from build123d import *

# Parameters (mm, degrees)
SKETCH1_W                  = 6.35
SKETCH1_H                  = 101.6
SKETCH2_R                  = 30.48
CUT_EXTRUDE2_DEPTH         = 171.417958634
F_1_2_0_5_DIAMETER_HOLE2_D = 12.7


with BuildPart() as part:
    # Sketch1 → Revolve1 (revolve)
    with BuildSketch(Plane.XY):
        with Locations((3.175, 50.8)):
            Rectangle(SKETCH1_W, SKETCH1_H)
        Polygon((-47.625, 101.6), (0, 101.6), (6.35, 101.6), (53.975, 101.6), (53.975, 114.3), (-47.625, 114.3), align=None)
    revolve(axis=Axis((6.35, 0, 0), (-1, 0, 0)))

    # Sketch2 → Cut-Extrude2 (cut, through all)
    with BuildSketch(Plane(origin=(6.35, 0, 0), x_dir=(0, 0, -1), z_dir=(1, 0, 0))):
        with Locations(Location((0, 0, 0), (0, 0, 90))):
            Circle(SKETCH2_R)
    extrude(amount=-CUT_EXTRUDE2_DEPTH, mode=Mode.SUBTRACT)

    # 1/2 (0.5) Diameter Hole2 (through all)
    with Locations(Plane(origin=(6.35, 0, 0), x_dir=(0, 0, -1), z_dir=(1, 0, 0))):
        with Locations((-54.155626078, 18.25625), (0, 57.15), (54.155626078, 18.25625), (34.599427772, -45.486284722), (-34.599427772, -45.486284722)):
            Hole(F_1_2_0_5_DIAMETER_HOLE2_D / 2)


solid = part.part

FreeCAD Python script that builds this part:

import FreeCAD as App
import Part
import Sketcher
from FreeCAD import Vector
Q = App.Units.Quantity

doc = App.newDocument("Part")
body = doc.addObject("PartDesign::Body", "Body")

# Sketch on XY plane
sketch1 = body.newObject("Sketcher::SketchObject", "Sketch")
sketch1.AttachmentSupport = (doc.getObject("XY_Plane"), [""])
sketch1.MapMode = "FlatFace"
sketch1.addGeometry(Part.LineSegment(Vector(0, 101.6, 0), Vector(0, 0, 0)), False)
sketch1.addGeometry(Part.LineSegment(Vector(0, 0, 0), Vector(6.35, 0, 0)), False)
sketch1.addGeometry(Part.LineSegment(Vector(6.35, 0, 0), Vector(6.35, 101.6, 0)), False)
sketch1.addGeometry(Part.LineSegment(Vector(6.35, 101.6, 0), Vector(53.975, 101.6, 0)), False)
sketch1.addGeometry(Part.LineSegment(Vector(53.975, 101.6, 0), Vector(53.975, 114.3, 0)), False)
sketch1.addGeometry(Part.LineSegment(Vector(53.975, 114.3, 0), Vector(-47.625, 114.3, 0)), False)
sketch1.addGeometry(Part.LineSegment(Vector(-47.625, 114.3, 0), Vector(-47.625, 101.6, 0)), False)
sketch1.addGeometry(Part.LineSegment(Vector(-47.625, 101.6, 0), Vector(0, 101.6, 0)), False)
sketch1.addConstraint(Sketcher.Constraint("Coincident", 0, 2, 1, 1))
sketch1.addConstraint(Sketcher.Constraint("Coincident", 1, 2, 2, 1))
sketch1.addConstraint(Sketcher.Constraint("Coincident", 2, 2, 3, 1))
sketch1.addConstraint(Sketcher.Constraint("Coincident", 3, 2, 4, 1))
sketch1.addConstraint(Sketcher.Constraint("Coincident", 4, 2, 5, 1))
sketch1.addConstraint(Sketcher.Constraint("Coincident", 5, 2, 6, 1))
sketch1.addConstraint(Sketcher.Constraint("Coincident", 6, 2, 7, 1))
sketch1.addConstraint(Sketcher.Constraint("Coincident", 7, 2, 0, 1))
sketch1.addConstraint(Sketcher.Constraint("Vertical", 0))
sketch1.addConstraint(Sketcher.Constraint("Horizontal", 1))
sketch1.addConstraint(Sketcher.Constraint("Vertical", 2))
sketch1.addConstraint(Sketcher.Constraint("Horizontal", 3))
sketch1.addConstraint(Sketcher.Constraint("Vertical", 4))
sketch1.addConstraint(Sketcher.Constraint("Horizontal", 5))
sketch1.addConstraint(Sketcher.Constraint("Vertical", 6))
sketch1.addConstraint(Sketcher.Constraint("Horizontal", 7))
sketch1.addConstraint(Sketcher.Constraint("Coincident", 0, 2, -1, 1))
sketch1.addConstraint(Sketcher.Constraint("Horizontal", 3, 2, 6, 2))
sketch1.addConstraint(Sketcher.Constraint("Equal", 3, 7))
sketch1.addConstraint(Sketcher.Constraint("Equal", 5, 0))
sketch1.addConstraint(Sketcher.Constraint("DistanceX", 5, 2, 5, 1, Q("4 in")))
sketch1.addConstraint(Sketcher.Constraint("DistanceY", 4, 1, 4, 2, Q("0.5 in")))
sketch1.addConstraint(Sketcher.Constraint("DistanceX", 1, 1, 1, 2, Q("0.25 in")))
revolution = body.newObject("PartDesign::Revolution", "Revolution")
revolution.Profile = sketch1
revolution.ReferenceAxis = (sketch1, ["H_Axis"])
revolution.Angle = 360

# Sketch on YZ plane
sketch2 = body.newObject("Sketcher::SketchObject", "Sketch001")
sketch2.AttachmentSupport = (doc.getObject("YZ_Plane"), [""])
sketch2.MapMode = "FlatFace"
sketch2.AttachmentOffset = App.Placement(Vector(0, 0, 0.25 * 25.4), App.Rotation())
sketch2.addGeometry(Part.Circle(Vector(0, 0, 0), Vector(0, 0, 1), 30.48), False)
sketch2.addConstraint(Sketcher.Constraint("Coincident", 0, 3, -1, 1))
sketch2.addConstraint(Sketcher.Constraint("Diameter", 0, Q("2.4 in")))
pocket1 = body.newObject("PartDesign::Pocket", "Pocket")
pocket1.Profile = sketch2
pocket1.Type = "ThroughAll"

# Sketch on YZ plane
sketch3 = body.newObject("Sketcher::SketchObject", "Sketch002")
sketch3.AttachmentSupport = (doc.getObject("YZ_Plane"), [""])
sketch3.MapMode = "FlatFace"
sketch3.AttachmentOffset = App.Placement(Vector(0, 0, 0.25 * 25.4), App.Rotation())
sketch3.addGeometry(Part.Circle(Vector(18.25625, 54.155626, 0), Vector(0, 0, 1), 6.35), False)
sketch3.addGeometry(Part.Circle(Vector(57.15, 0, 0), Vector(0, 0, 1), 6.35), False)
sketch3.addGeometry(Part.Circle(Vector(18.25625, -54.155626, 0), Vector(0, 0, 1), 6.35), False)
sketch3.addGeometry(Part.Circle(Vector(-45.486285, -34.599428, 0), Vector(0, 0, 1), 6.35), False)
sketch3.addGeometry(Part.Circle(Vector(-45.486285, 34.599428, 0), Vector(0, 0, 1), 6.35), False)
sketch3.addConstraint(Sketcher.Constraint("Equal", 0, 1))
sketch3.addConstraint(Sketcher.Constraint("Equal", 1, 2))
sketch3.addConstraint(Sketcher.Constraint("Equal", 2, 3))
sketch3.addConstraint(Sketcher.Constraint("Equal", 3, 4))
sketch3.addConstraint(Sketcher.Constraint("Symmetric", 0, 3, 2, 3, -1))
sketch3.addConstraint(Sketcher.Constraint("Symmetric", 3, 3, 4, 3, -1))
sketch3.addConstraint(Sketcher.Constraint("PointOnObject", 1, 3, -1))
sketch3.addConstraint(Sketcher.Constraint("Diameter", 0, Q("0.5 in")))
sketch3.addConstraint(Sketcher.Constraint("DistanceX", -1, 1, 1, 3, Q("2.25 in")))
sketch3.addConstraint(Sketcher.Constraint("DistanceX", -1, 1, 0, 3, Q("0.71875 in")))
sketch3.addConstraint(Sketcher.Constraint("DistanceY", 2, 3, 3, 3, Q("19.556198 mm")))
sketch3.addConstraint(Sketcher.Constraint("DistanceY", -1, 1, 0, 3, Q("54.155626 mm")))
sketch3.addConstraint(Sketcher.Constraint("DistanceX", 3, 3, -1, 1, Q("45.486285 mm")))
doc.recompute()
hole = body.newObject("PartDesign::Hole", "Hole")
hole.Profile = sketch3
hole.ThreadType = "None"
hole.Diameter = Q("0.5 in")
hole.DepthType = "ThroughAll"

doc.recompute()
